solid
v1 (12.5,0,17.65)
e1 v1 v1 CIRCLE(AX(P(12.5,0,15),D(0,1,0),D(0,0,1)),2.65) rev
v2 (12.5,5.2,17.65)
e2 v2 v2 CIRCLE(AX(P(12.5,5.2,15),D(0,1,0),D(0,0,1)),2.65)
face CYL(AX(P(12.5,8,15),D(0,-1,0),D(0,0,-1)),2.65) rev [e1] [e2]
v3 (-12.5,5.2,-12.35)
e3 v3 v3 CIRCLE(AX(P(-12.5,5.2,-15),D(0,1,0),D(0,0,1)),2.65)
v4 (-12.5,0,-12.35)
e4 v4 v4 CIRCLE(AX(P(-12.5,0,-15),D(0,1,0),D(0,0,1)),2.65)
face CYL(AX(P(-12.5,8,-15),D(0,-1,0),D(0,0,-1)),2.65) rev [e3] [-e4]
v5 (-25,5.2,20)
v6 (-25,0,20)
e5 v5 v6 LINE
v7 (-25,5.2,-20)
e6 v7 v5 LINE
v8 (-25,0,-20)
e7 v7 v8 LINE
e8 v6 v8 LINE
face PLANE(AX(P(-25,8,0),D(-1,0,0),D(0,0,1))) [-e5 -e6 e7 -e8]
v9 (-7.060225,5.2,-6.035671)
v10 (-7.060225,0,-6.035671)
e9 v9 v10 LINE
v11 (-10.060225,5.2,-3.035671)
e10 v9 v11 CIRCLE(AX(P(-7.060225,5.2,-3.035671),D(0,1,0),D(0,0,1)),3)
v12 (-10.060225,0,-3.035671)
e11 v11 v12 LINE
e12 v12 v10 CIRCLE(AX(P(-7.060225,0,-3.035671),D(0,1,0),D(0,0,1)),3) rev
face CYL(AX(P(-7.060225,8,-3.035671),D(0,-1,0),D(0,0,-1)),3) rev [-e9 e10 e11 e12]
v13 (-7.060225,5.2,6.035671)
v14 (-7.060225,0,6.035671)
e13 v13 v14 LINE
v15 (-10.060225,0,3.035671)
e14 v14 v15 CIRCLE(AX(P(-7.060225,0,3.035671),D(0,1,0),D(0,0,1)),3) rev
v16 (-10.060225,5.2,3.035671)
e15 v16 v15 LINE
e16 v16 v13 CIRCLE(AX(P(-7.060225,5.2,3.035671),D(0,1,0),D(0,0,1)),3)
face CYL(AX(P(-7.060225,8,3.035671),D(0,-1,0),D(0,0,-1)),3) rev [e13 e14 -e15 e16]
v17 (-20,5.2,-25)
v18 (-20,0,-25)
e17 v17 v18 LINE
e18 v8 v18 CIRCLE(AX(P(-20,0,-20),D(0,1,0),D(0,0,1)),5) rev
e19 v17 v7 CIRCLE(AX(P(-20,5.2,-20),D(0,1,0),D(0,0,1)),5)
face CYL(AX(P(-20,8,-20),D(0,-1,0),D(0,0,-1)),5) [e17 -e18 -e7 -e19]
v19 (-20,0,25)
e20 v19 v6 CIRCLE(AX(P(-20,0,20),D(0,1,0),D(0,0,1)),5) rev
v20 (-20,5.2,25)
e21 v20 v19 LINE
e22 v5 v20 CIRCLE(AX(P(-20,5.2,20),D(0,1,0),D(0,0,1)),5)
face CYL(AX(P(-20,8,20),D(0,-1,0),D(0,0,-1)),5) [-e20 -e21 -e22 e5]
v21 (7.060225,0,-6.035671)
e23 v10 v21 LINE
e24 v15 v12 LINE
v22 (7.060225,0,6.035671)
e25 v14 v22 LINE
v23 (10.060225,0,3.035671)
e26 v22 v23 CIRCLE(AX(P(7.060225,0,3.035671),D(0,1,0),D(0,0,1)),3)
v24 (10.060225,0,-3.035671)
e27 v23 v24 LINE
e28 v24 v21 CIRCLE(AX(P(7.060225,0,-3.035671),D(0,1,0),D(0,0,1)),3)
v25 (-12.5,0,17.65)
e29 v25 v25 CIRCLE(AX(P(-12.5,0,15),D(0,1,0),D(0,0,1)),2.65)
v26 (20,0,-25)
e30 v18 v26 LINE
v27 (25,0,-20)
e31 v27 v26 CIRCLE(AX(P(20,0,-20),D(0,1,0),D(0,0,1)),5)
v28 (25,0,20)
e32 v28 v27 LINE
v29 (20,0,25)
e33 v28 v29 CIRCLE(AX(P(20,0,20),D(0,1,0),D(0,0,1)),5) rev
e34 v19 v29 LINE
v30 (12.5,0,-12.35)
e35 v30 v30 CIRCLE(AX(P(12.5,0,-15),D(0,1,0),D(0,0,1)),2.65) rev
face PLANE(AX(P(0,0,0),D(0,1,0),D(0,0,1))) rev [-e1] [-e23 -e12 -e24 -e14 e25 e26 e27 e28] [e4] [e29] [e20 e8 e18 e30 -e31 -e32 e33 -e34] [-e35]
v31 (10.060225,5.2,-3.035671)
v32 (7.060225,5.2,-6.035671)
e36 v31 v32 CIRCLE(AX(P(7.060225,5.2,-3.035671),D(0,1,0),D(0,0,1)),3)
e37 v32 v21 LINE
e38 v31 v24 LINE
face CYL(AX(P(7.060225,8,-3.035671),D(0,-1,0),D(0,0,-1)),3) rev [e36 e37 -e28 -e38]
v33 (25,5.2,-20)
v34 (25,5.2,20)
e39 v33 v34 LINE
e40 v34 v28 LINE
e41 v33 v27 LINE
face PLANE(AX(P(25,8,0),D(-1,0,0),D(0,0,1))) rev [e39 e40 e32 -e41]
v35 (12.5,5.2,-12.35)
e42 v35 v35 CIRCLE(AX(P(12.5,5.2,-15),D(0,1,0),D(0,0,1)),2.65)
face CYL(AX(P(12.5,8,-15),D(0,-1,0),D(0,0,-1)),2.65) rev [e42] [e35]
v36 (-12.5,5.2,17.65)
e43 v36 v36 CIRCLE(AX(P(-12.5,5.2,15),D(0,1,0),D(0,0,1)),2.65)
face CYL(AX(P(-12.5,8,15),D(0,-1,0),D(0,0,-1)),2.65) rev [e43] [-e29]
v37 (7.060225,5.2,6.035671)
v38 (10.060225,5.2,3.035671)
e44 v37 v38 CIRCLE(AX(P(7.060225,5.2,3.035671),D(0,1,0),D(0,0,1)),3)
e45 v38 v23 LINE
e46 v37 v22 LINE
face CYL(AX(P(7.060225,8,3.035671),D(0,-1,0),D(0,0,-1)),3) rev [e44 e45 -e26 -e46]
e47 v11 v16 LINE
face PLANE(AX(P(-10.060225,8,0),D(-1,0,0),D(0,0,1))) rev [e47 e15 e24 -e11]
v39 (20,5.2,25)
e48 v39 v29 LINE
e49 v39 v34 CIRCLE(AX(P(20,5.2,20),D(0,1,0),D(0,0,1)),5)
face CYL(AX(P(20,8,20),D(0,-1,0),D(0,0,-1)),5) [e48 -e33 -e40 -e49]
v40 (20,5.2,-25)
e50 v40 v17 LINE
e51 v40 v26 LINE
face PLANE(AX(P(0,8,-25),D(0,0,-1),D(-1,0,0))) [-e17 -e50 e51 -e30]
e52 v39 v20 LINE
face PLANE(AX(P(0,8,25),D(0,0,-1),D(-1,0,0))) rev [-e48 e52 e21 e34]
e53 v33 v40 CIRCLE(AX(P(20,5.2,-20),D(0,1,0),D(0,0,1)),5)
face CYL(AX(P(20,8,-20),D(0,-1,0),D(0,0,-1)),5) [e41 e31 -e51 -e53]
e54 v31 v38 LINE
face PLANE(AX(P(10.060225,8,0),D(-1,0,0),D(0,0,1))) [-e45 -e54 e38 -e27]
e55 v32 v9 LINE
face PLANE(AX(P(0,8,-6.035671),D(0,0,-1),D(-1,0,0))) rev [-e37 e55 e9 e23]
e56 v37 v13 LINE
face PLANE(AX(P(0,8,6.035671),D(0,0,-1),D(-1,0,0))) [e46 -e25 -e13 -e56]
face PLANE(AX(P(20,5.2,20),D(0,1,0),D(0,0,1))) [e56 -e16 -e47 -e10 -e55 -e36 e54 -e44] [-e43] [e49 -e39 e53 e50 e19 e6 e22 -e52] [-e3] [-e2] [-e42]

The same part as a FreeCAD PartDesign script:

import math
import FreeCAD as App
import Part
import Sketcher
from FreeCAD import Vector
Q = App.Units.Quantity

doc = App.newDocument("Part")
body = doc.addObject("PartDesign::Body", "Body")

# Sketch on XZ plane
sketch1 = doc.addObject("Sketcher::SketchObject", "Sketch")
body.addObject(sketch1)
sketch1.AttachmentSupport = (doc.XZ_Plane, [""])
sketch1.MapMode = "FlatFace"
sketch1.addGeometry([
    Part.LineSegment(Vector(-20, 25, 0), Vector(20, 25, 0)),  # 0
    Part.ArcOfCircle(Part.Circle(Vector(20, 20, 0), Vector(0, 0, 1), 5), math.radians(0), math.radians(90)),  # 1
    Part.LineSegment(Vector(25, 20, 0), Vector(25, -20, 0)),  # 2
    Part.ArcOfCircle(Part.Circle(Vector(20, -20, 0), Vector(0, 0, 1), 5), math.radians(-90), math.radians(0)),  # 3
    Part.LineSegment(Vector(20, -25, 0), Vector(-20, -25, 0)),  # 4
    Part.ArcOfCircle(Part.Circle(Vector(-20, -20, 0), Vector(0, 0, 1), 5), math.radians(180), math.radians(270)),  # 5
    Part.LineSegment(Vector(-25, -20, 0), Vector(-25, 20, 0)),  # 6
    Part.ArcOfCircle(Part.Circle(Vector(-20, 20, 0), Vector(0, 0, 1), 5), math.radians(90), math.radians(180)),  # 7
    Part.Circle(Vector(-12.5, 15, 0), Vector(0, 0, 1), 2.6),  # 8
    Part.Circle(Vector(12.5, 15, 0), Vector(0, 0, 1), 2.6),  # 9
    Part.Circle(Vector(-12.5, -15, 0), Vector(0, 0, 1), 2.6),  # 10
    Part.LineSegment(Vector(7.1, 6, 0), Vector(-7.1, 6, 0)),  # 11
    Part.ArcOfCircle(Part.Circle(Vector(-7.1, 3, 0), Vector(0, 0, 1), 3), math.radians(90), math.radians(180)),  # 12
    Part.LineSegment(Vector(-10.1, 3, 0), Vector(-10.1, -3, 0)),  # 13
    Part.ArcOfCircle(Part.Circle(Vector(-7.1, -3, 0), Vector(0, 0, 1), 3), math.radians(-180), math.radians(-90)),  # 14
    Part.LineSegment(Vector(-7.1, -6, 0), Vector(7.1, -6, 0)),  # 15
    Part.ArcOfCircle(Part.Circle(Vector(7.1, -3, 0), Vector(0, 0, 1), 3), math.radians(-90), math.radians(0)),  # 16
    Part.LineSegment(Vector(10.1, -3, 0), Vector(10.1, 3, 0)),  # 17
    Part.ArcOfCircle(Part.Circle(Vector(7.1, 3, 0), Vector(0, 0, 1), 3), math.radians(0), math.radians(90)),  # 18
    Part.Circle(Vector(12.5, -15, 0), Vector(0, 0, 1), 2.6),  # 19
], False)
sketch1.addConstraint([
    Sketcher.Constraint("Tangent", 0, 2, 1, 2),
    Sketcher.Constraint("Tangent", 1, 1, 2, 1),
    Sketcher.Constraint("Tangent", 2, 2, 3, 2),
    Sketcher.Constraint("Tangent", 3, 1, 4, 1),
    Sketcher.Constraint("Tangent", 4, 2, 5, 2),
    Sketcher.Constraint("Tangent", 5, 1, 6, 1),
    Sketcher.Constraint("Tangent", 6, 2, 7, 2),
    Sketcher.Constraint("Tangent", 7, 1, 0, 1),
    Sketcher.Constraint("Tangent", 11, 2, 12, 1),
    Sketcher.Constraint("Tangent", 12, 2, 13, 1),
    Sketcher.Constraint("Tangent", 13, 2, 14, 1),
    Sketcher.Constraint("Tangent", 14, 2, 15, 1),
    Sketcher.Constraint("Tangent", 15, 2, 16, 1),
    Sketcher.Constraint("Tangent", 16, 2, 17, 1),
    Sketcher.Constraint("Tangent", 17, 2, 18, 1),
    Sketcher.Constraint("Tangent", 18, 2, 11, 1),
    Sketcher.Constraint("Horizontal", 0),
    Sketcher.Constraint("Vertical", 2),
    Sketcher.Constraint("Horizontal", 4),
    Sketcher.Constraint("Vertical", 6),
    Sketcher.Constraint("Horizontal", 11),
    Sketcher.Constraint("Vertical", 13),
    Sketcher.Constraint("Horizontal", 15),
    Sketcher.Constraint("Vertical", 17),
    Sketcher.Constraint("Equal", 1, 3),
    Sketcher.Constraint("Equal", 3, 5),
    Sketcher.Constraint("Equal", 5, 7),
    Sketcher.Constraint("Equal", 8, 9),
    Sketcher.Constraint("Equal", 9, 10),
    Sketcher.Constraint("Equal", 12, 14),
    Sketcher.Constraint("Equal", 14, 16),
    Sketcher.Constraint("Equal", 16, 18),
    Sketcher.Constraint("Equal", 10, 19),
    Sketcher.Constraint("Symmetric", 1, 3, 5, 3, -1, 1),
    Sketcher.Constraint("Symmetric", 9, 3, 10, 3, -1, 1),
    Sketcher.Constraint("Symmetric", 12, 3, 16, 3, -1, 1),
    Sketcher.Constraint("Symmetric", 8, 3, 19, 3, -1, 1),
    Sketcher.Constraint("Symmetric", 8, 3, 9, 3, -2),
    Sketcher.Constraint("Equal", 4, 2),
    Sketcher.Constraint("Radius", 1, Q("5 mm")),
    Sketcher.Constraint("Radius", 12, Q("3 mm")),
    Sketcher.Constraint("Diameter", 8, Q("5.3 mm")),
    Sketcher.Constraint("DistanceX", 0, 1, 0, 2, Q("40 mm")),
    Sketcher.Constraint("DistanceY", -1, 1, 8, 3, Q("15 mm")),
    Sketcher.Constraint("DistanceX", 8, 3, 9, 3, Q("25 mm")),
    Sketcher.Constraint("DistanceX", 11, 2, 11, 1, Q("14.120449 mm")),
    Sketcher.Constraint("DistanceY", 13, 2, 13, 1, Q("6.071342 mm")),
])
pad1 = doc.addObject("PartDesign::Pad", "Pad")
body.addObject(pad1)
pad1.Profile = sketch1
pad1.Length = 8
pad1.Reversed = True

# Sketch on XZ plane
sketch2 = doc.addObject("Sketcher::SketchObject", "Sketch001")
body.addObject(sketch2)
sketch2.AttachmentSupport = (doc.XZ_Plane, [""])
sketch2.MapMode = "FlatFace"
sketch2.AttachmentOffset = App.Placement(Vector(0, 0, -8), App.Rotation())
sketch2.addGeometry([
    Part.LineSegment(Vector(-20, 25, 0), Vector(20, 25, 0)),  # 0
    Part.ArcOfCircle(Part.Circle(Vector(20, 20, 0), Vector(0, 0, 1), 5), math.radians(0), math.radians(90)),  # 1
    Part.LineSegment(Vector(25, 20, 0), Vector(25, -20, 0)),  # 2
    Part.ArcOfCircle(Part.Circle(Vector(20, -20, 0), Vector(0, 0, 1), 5), math.radians(-90), math.radians(0)),  # 3
    Part.LineSegment(Vector(20, -25, 0), Vector(-20, -25, 0)),  # 4
    Part.ArcOfCircle(Part.Circle(Vector(-20, -20, 0), Vector(0, 0, 1), 5), math.radians(180), math.radians(270)),  # 5
    Part.LineSegment(Vector(-25, -20, 0), Vector(-25, 20, 0)),  # 6
    Part.ArcOfCircle(Part.Circle(Vector(-20, 20, 0), Vector(0, 0, 1), 5), math.radians(90), math.radians(180)),  # 7
    Part.Circle(Vector(-12.5, 15, 0), Vector(0, 0, 1), 2.6),  # 8
    Part.Circle(Vector(12.5, 15, 0), Vector(0, 0, 1), 2.6),  # 9
    Part.Circle(Vector(-12.5, -15, 0), Vector(0, 0, 1), 2.6),  # 10
    Part.LineSegment(Vector(7.1, 6, 0), Vector(-7.1, 6, 0)),  # 11
    Part.ArcOfCircle(Part.Circle(Vector(-7.1, 3, 0), Vector(0, 0, 1), 3), math.radians(90), math.radians(180)),  # 12
    Part.LineSegment(Vector(-10.1, 3, 0), Vector(-10.1, -3, 0)),  # 13
    Part.ArcOfCircle(Part.Circle(Vector(-7.1, -3, 0), Vector(0, 0, 1), 3), math.radians(-180), math.radians(-90)),  # 14
    Part.LineSegment(Vector(-7.1, -6, 0), Vector(7.1, -6, 0)),  # 15
    Part.ArcOfCircle(Part.Circle(Vector(7.1, -3, 0), Vector(0, 0, 1), 3), math.radians(-90), math.radians(0)),  # 16
    Part.LineSegment(Vector(10.1, -3, 0), Vector(10.1, 3, 0)),  # 17
    Part.ArcOfCircle(Part.Circle(Vector(7.1, 3, 0), Vector(0, 0, 1), 3), math.radians(0), math.radians(90)),  # 18
    Part.Circle(Vector(12.5, -15, 0), Vector(0, 0, 1), 2.6),  # 19
], False)
sketch2.addConstraint([
    Sketcher.Constraint("Tangent", 0, 2, 1, 2),
    Sketcher.Constraint("Tangent", 1, 1, 2, 1),
    Sketcher.Constraint("Tangent", 2, 2, 3, 2),
    Sketcher.Constraint("Tangent", 3, 1, 4, 1),
    Sketcher.Constraint("Tangent", 4, 2, 5, 2),
    Sketcher.Constraint("Tangent", 5, 1, 6, 1),
    Sketcher.Constraint("Tangent", 6, 2, 7, 2),
    Sketcher.Constraint("Tangent", 7, 1, 0, 1),
    Sketcher.Constraint("Tangent", 11, 2, 12, 1),
    Sketcher.Constraint("Tangent", 12, 2, 13, 1),
    Sketcher.Constraint("Tangent", 13, 2, 14, 1),
    Sketcher.Constraint("Tangent", 14, 2, 15, 1),
    Sketcher.Constraint("Tangent", 15, 2, 16, 1),
    Sketcher.Constraint("Tangent", 16, 2, 17, 1),
    Sketcher.Constraint("Tangent", 17, 2, 18, 1),
    Sketcher.Constraint("Tangent", 18, 2, 11, 1),
    Sketcher.Constraint("Horizontal", 0),
    Sketcher.Constraint("Vertical", 2),
    Sketcher.Constraint("Horizontal", 4),
    Sketcher.Constraint("Vertical", 6),
    Sketcher.Constraint("Horizontal", 11),
    Sketcher.Constraint("Vertical", 13),
    Sketcher.Constraint("Horizontal", 15),
    Sketcher.Constraint("Vertical", 17),
    Sketcher.Constraint("Equal", 1, 3),
    Sketcher.Constraint("Equal", 3, 5),
    Sketcher.Constraint("Equal", 5, 7),
    Sketcher.Constraint("Equal", 8, 9),
    Sketcher.Constraint("Equal", 9, 10),
    Sketcher.Constraint("Equal", 12, 14),
    Sketcher.Constraint("Equal", 14, 16),
    Sketcher.Constraint("Equal", 16, 18),
    Sketcher.Constraint("Equal", 10, 19),
    Sketcher.Constraint("Symmetric", 1, 3, 5, 3, -1, 1),
    Sketcher.Constraint("Symmetric", 9, 3, 10, 3, -1, 1),
    Sketcher.Constraint("Symmetric", 12, 3, 16, 3, -1, 1),
    Sketcher.Constraint("Symmetric", 8, 3, 19, 3, -1, 1),
    Sketcher.Constraint("Symmetric", 8, 3, 9, 3, -2),
    Sketcher.Constraint("Equal", 4, 2),
    Sketcher.Constraint("Radius", 1, Q("5 mm")),
    Sketcher.Constraint("Radius", 12, Q("3 mm")),
    Sketcher.Constraint("Diameter", 8, Q("5.3 mm")),
    Sketcher.Constraint("DistanceX", 0, 1, 0, 2, Q("40 mm")),
    Sketcher.Constraint("DistanceY", -1, 1, 8, 3, Q("15 mm")),
    Sketcher.Constraint("DistanceX", 8, 3, 9, 3, Q("25 mm")),
    Sketcher.Constraint("DistanceX", 11, 2, 11, 1, Q("14.120449 mm")),
    Sketcher.Constraint("DistanceY", 13, 2, 13, 1, Q("6.071342 mm")),
])
pocket1 = doc.addObject("PartDesign::Pocket", "Pocket")
body.addObject(pocket1)
pocket1.Profile = sketch2
pocket1.Length = 2.8
pocket1.Reversed = True

doc.recompute()
